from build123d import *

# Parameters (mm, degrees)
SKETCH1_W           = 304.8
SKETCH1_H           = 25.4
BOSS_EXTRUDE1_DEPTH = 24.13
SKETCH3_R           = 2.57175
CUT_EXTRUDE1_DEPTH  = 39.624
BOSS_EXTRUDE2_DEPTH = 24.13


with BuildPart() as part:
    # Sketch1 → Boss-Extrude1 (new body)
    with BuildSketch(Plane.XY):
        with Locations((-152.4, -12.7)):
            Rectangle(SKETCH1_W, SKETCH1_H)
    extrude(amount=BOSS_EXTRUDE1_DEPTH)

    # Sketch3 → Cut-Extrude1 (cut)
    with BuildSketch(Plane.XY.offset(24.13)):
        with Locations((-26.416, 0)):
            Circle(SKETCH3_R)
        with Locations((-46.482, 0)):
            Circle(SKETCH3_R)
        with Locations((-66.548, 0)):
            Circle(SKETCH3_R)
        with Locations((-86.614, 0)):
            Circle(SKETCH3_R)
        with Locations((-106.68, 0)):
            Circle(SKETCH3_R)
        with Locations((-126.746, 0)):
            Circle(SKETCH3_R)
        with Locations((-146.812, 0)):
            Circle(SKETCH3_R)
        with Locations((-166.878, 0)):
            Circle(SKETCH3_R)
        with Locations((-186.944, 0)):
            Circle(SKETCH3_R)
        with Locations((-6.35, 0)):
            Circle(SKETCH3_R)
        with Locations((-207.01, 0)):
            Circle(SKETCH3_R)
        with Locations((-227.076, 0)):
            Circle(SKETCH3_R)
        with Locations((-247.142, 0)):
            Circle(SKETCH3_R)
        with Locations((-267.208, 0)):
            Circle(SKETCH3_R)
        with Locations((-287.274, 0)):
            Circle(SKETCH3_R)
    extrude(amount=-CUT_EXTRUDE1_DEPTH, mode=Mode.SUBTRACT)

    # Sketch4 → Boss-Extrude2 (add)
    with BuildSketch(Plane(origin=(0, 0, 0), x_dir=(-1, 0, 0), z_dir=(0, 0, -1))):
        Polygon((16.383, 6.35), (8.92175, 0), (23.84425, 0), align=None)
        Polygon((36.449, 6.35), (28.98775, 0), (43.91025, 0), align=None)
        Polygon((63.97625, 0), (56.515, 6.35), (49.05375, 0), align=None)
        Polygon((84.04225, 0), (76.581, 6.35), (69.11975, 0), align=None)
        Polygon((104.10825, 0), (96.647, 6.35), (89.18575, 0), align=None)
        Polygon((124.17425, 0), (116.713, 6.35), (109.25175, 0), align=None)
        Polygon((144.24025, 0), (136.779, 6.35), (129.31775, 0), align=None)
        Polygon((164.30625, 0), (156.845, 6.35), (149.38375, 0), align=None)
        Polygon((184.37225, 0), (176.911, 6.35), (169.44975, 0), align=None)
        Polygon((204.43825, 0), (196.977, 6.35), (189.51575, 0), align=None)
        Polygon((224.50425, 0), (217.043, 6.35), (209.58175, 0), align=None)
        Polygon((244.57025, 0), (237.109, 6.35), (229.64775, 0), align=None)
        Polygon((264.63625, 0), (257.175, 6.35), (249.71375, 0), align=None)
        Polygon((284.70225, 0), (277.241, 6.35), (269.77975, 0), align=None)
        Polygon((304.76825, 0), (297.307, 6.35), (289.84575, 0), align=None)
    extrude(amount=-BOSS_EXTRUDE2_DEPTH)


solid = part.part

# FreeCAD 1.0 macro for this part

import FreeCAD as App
import Part
import Sketcher
Q = App.Units.Quantity

doc = App.newDocument("Part")
body = doc.addObject("PartDesign::Body", "Body")

# Sketch on XY plane
sketch1 = body.newObject("Sketcher::SketchObject", "Sketch")
sketch1.AttachmentSupport = (doc.getObject("XY_Plane"), [""])
sketch1.MapMode = "FlatFace"
sketch1.addGeometry([
    Part.LineSegment(App.Vector(-305, 0, 0), App.Vector(-305, -25, 0)),
    Part.LineSegment(App.Vector(-305, -25, 0), App.Vector(0, -25, 0)),
    Part.LineSegment(App.Vector(0, -25, 0), App.Vector(0, 0, 0)),
    Part.LineSegment(App.Vector(0, 0, 0), App.Vector(-305, 0, 0)),
], False)
sketch1.addConstraint([
    Sketcher.Constraint("Coincident", 0, 2, 1, 1),
    Sketcher.Constraint("Coincident", 1, 2, 2, 1),
    Sketcher.Constraint("Coincident", 2, 2, 3, 1),
    Sketcher.Constraint("Coincident", 3, 2, 0, 1),
    Sketcher.Constraint("Vertical", 0),
    Sketcher.Constraint("Horizontal", 1),
    Sketcher.Constraint("Vertical", 2),
    Sketcher.Constraint("Horizontal", 3),
    Sketcher.Constraint("Coincident", 2, 2, -1, 1),
    Sketcher.Constraint("DistanceX", 1, 1, 1, 2, Q("12 in")),
    Sketcher.Constraint("DistanceY", 0, 2, 0, 1, Q("1 in")),
])
pad1 = body.newObject("PartDesign::Pad", "Pad")
pad1.Profile = sketch1
pad1.Length = Q("0.95 in")

# Sketch on XY plane
sketch2 = body.newObject("Sketcher::SketchObject", "Sketch001")
sketch2.AttachmentSupport = (doc.getObject("XY_Plane"), [""])
sketch2.MapMode = "FlatFace"
sketch2.AttachmentOffset = App.Placement(App.Vector(0, 0, 0.95 * 25.4), App.Rotation())
sketch2.addGeometry([
    Part.Circle(App.Vector(-26.4, 0, 0), App.Vector(0, 0, 1), 2.6),  # 0
    Part.Circle(App.Vector(-46.5, 0, 0), App.Vector(0, 0, 1), 2.6),  # 1
    Part.Circle(App.Vector(-66.5, 0, 0), App.Vector(0, 0, 1), 2.6),  # 2
    Part.Circle(App.Vector(-86.6, 0, 0), App.Vector(0, 0, 1), 2.6),  # 3
    Part.Circle(App.Vector(-106.7, 0, 0), App.Vector(0, 0, 1), 2.6),  # 4
    Part.Circle(App.Vector(-126.7, 0, 0), App.Vector(0, 0, 1), 2.6),  # 5
    Part.Circle(App.Vector(-146.8, 0, 0), App.Vector(0, 0, 1), 2.6),  # 6
    Part.Circle(App.Vector(-166.9, 0, 0), App.Vector(0, 0, 1), 2.6),  # 7
    Part.Circle(App.Vector(-186.9, 0, 0), App.Vector(0, 0, 1), 2.6),  # 8
    Part.Circle(App.Vector(-6.3, 0, 0), App.Vector(0, 0, 1), 2.6),  # 9
    Part.Circle(App.Vector(-207, 0, 0), App.Vector(0, 0, 1), 2.6),  # 10
    Part.Circle(App.Vector(-227.1, 0, 0), App.Vector(0, 0, 1), 2.6),  # 11
    Part.Circle(App.Vector(-247.1, 0, 0), App.Vector(0, 0, 1), 2.6),  # 12
    Part.Circle(App.Vector(-267.2, 0, 0), App.Vector(0, 0, 1), 2.6),  # 13
    Part.Circle(App.Vector(-287.3, 0, 0), App.Vector(0, 0, 1), 2.6),  # 14
], False)
sketch2.addConstraint([
    Sketcher.Constraint("Equal", 0, 1),
    Sketcher.Constraint("Equal", 1, 2),
    Sketcher.Constraint("Equal", 2, 3),
    Sketcher.Constraint("Equal", 3, 4),
    Sketcher.Constraint("Equal", 4, 5),
    Sketcher.Constraint("Equal", 5, 6),
    Sketcher.Constraint("Equal", 6, 7),
    Sketcher.Constraint("Equal", 7, 8),
    Sketcher.Constraint("Equal", 8, 9),
    Sketcher.Constraint("Equal", 9, 10),
    Sketcher.Constraint("Equal", 10, 11),
    Sketcher.Constraint("Equal", 11, 12),
    Sketcher.Constraint("Equal", 12, 13),
    Sketcher.Constraint("Equal", 13, 14),
    Sketcher.Constraint("PointOnObject", 0, 3, -1),
    Sketcher.Constraint("PointOnObject", 1, 3, -1),
    Sketcher.Constraint("PointOnObject", 2, 3, -1),
    Sketcher.Constraint("PointOnObject", 3, 3, -1),
    Sketcher.Constraint("PointOnObject", 4, 3, -1),
    Sketcher.Constraint("PointOnObject", 5, 3, -1),
    Sketcher.Constraint("PointOnObject", 6, 3, -1),
    Sketcher.Constraint("PointOnObject", 7, 3, -1),
    Sketcher.Constraint("PointOnObject", 8, 3, -1),
    Sketcher.Constraint("PointOnObject", 9, 3, -1),
    Sketcher.Constraint("PointOnObject", 10, 3, -1),
    Sketcher.Constraint("PointOnObject", 11, 3, -1),
    Sketcher.Constraint("PointOnObject", 12, 3, -1),
    Sketcher.Constraint("PointOnObject", 13, 3, -1),
    Sketcher.Constraint("PointOnObject", 14, 3, -1),
    Sketcher.Constraint("Diameter", 0, Q("0.2025 in")),
    Sketcher.Constraint("DistanceX", 4, 3, -1, 1, Q("4.2 in")),
    Sketcher.Constraint("DistanceX", 0, 3, -1, 1, Q("1.04 in")),
    Sketcher.Constraint("DistanceX", 1, 3, -1, 1, Q("1.83 in")),
    Sketcher.Constraint("DistanceX", 2, 3, -1, 1, Q("2.62 in")),
    Sketcher.Constraint("DistanceX", 3, 3, -1, 1, Q("3.41 in")),
    Sketcher.Constraint("DistanceX", 5, 3, -1, 1, Q("4.99 in")),
    Sketcher.Constraint("DistanceX", 6, 3, -1, 1, Q("5.78 in")),
    Sketcher.Constraint("DistanceX", 7, 3, -1, 1, Q("6.57 in")),
    Sketcher.Constraint("DistanceX", 8, 3, -1, 1, Q("7.36 in")),
    Sketcher.Constraint("DistanceX", 9, 3, -1, 1, Q("0.25 in")),
    Sketcher.Constraint("DistanceX", 10, 3, -1, 1, Q("8.15 in")),
    Sketcher.Constraint("DistanceX", 11, 3, -1, 1, Q("8.94 in")),
    Sketcher.Constraint("DistanceX", 12, 3, -1, 1, Q("9.73 in")),
    Sketcher.Constraint("DistanceX", 13, 3, -1, 1, Q("10.52 in")),
    Sketcher.Constraint("DistanceX", 14, 3, -1, 1, Q("11.31 in")),
])
pocket1 = body.newObject("PartDesign::Pocket", "Pocket")
pocket1.Profile = sketch2
pocket1.Length = Q("1.56 in")

# Sketch on XY plane
sketch3 = body.newObject("Sketcher::SketchObject", "Sketch002")
sketch3.AttachmentSupport = (doc.getObject("XY_Plane"), [""])
sketch3.MapMode = "FlatFace"
sketch3.addGeometry([
    Part.LineSegment(App.Vector(-16, 6, 0), App.Vector(-9, 0, 0)),  # 0
    Part.LineSegment(App.Vector(-9, 0, 0), App.Vector(-24, 0, 0)),  # 1
    Part.LineSegment(App.Vector(-24, 0, 0), App.Vector(-16, 6, 0)),  # 2
    Part.LineSegment(App.Vector(-36, 6, 0), App.Vector(-29, 0, 0)),  # 3
    Part.LineSegment(App.Vector(-29, 0, 0), App.Vector(-44, 0, 0)),  # 4
    Part.LineSegment(App.Vector(-44, 0, 0), App.Vector(-36, 6, 0)),  # 5
    Part.LineSegment(App.Vector(-64, 0, 0), App.Vector(-57, 6, 0)),  # 6
    Part.LineSegment(App.Vector(-57, 6, 0), App.Vector(-49, 0, 0)),  # 7
    Part.LineSegment(App.Vector(-49, 0, 0), App.Vector(-64, 0, 0)),  # 8
    Part.LineSegment(App.Vector(-84, 0, 0), App.Vector(-77, 6, 0)),  # 9
    Part.LineSegment(App.Vector(-77, 6, 0), App.Vector(-69, 0, 0)),  # 10
    Part.LineSegment(App.Vector(-69, 0, 0), App.Vector(-84, 0, 0)),  # 11
    Part.LineSegment(App.Vector(-104, 0, 0), App.Vector(-97, 6, 0)),  # 12
    Part.LineSegment(App.Vector(-97, 6, 0), App.Vector(-89, 0, 0)),  # 13
    Part.LineSegment(App.Vector(-89, 0, 0), App.Vector(-104, 0, 0)),  # 14
    Part.LineSegment(App.Vector(-124, 0, 0), App.Vector(-117, 6, 0)),  # 15
    Part.LineSegment(App.Vector(-117, 6, 0), App.Vector(-109, 0, 0)),  # 16
    Part.LineSegment(App.Vector(-109, 0, 0), App.Vector(-124, 0, 0)),  # 17
    Part.LineSegment(App.Vector(-144, 0, 0), App.Vector(-137, 6, 0)),  # 18
    Part.LineSegment(App.Vector(-137, 6, 0), App.Vector(-129, 0, 0)),  # 19
    Part.LineSegment(App.Vector(-129, 0, 0), App.Vector(-144, 0, 0)),  # 20
    Part.LineSegment(App.Vector(-164, 0, 0), App.Vector(-157, 6, 0)),  # 21
    Part.LineSegment(App.Vector(-157, 6, 0), App.Vector(-149, 0, 0)),  # 22
    Part.LineSegment(App.Vector(-149, 0, 0), App.Vector(-164, 0, 0)),  # 23
    Part.LineSegment(App.Vector(-184, 0, 0), App.Vector(-177, 6, 0)),  # 24
    Part.LineSegment(App.Vector(-177, 6, 0), App.Vector(-169, 0, 0)),  # 25
    Part.LineSegment(App.Vector(-169, 0, 0), App.Vector(-184, 0, 0)),  # 26
    Part.LineSegment(App.Vector(-204, 0, 0), App.Vector(-197, 6, 0)),  # 27
    Part.LineSegment(App.Vector(-197, 6, 0), App.Vector(-190, 0, 0)),  # 28
    Part.LineSegment(App.Vector(-190, 0, 0), App.Vector(-204, 0, 0)),  # 29
    Part.LineSegment(App.Vector(-225, 0, 0), App.Vector(-217, 6, 0)),  # 30
    Part.LineSegment(App.Vector(-217, 6, 0), App.Vector(-210, 0, 0)),  # 31
    Part.LineSegment(App.Vector(-210, 0, 0), App.Vector(-225, 0, 0)),  # 32
    Part.LineSegment(App.Vector(-245, 0, 0), App.Vector(-237, 6, 0)),  # 33
    Part.LineSegment(App.Vector(-237, 6, 0), App.Vector(-230, 0, 0)),  # 34
    Part.LineSegment(App.Vector(-230, 0, 0), App.Vector(-245, 0, 0)),  # 35
    Part.LineSegment(App.Vector(-265, 0, 0), App.Vector(-257, 6, 0)),  # 36
    Part.LineSegment(App.Vector(-257, 6, 0), App.Vector(-250, 0, 0)),  # 37
    Part.LineSegment(App.Vector(-250, 0, 0), App.Vector(-265, 0, 0)),  # 38
    Part.LineSegment(App.Vector(-285, 0, 0), App.Vector(-277, 6, 0)),  # 39
    Part.LineSegment(App.Vector(-277, 6, 0), App.Vector(-270, 0, 0)),  # 40
    Part.LineSegment(App.Vector(-270, 0, 0), App.Vector(-285, 0, 0)),  # 41
    Part.LineSegment(App.Vector(-305, 0, 0), App.Vector(-297, 6, 0)),  # 42
    Part.LineSegment(App.Vector(-297, 6, 0), App.Vector(-290, 0, 0)),  # 43
    Part.LineSegment(App.Vector(-290, 0, 0), App.Vector(-305, 0, 0)),  # 44
], False)
sketch3.addConstraint([
    Sketcher.Constraint("Coincident", 0, 2, 1, 1),
    Sketcher.Constraint("Coincident", 1, 2, 2, 1),
    Sketcher.Constraint("Coincident", 2, 2, 0, 1),
    Sketcher.Constraint("Coincident", 3, 2, 4, 1),
    Sketcher.Constraint("Coincident", 4, 2, 5, 1),
    Sketcher.Constraint("Coincident", 5, 2, 3, 1),
    Sketcher.Constraint("Coincident", 6, 2, 7, 1),
    Sketcher.Constraint("Coincident", 7, 2, 8, 1),
    Sketcher.Constraint("Coincident", 8, 2, 6, 1),
    Sketcher.Constraint("Coincident", 9, 2, 10, 1),
    Sketcher.Constraint("Coincident", 10, 2, 11, 1),
    Sketcher.Constraint("Coincident", 11, 2, 9, 1),
    Sketcher.Constraint("Coincident", 12, 2, 13, 1),
    Sketcher.Constraint("Coincident", 13, 2, 14, 1),
    Sketcher.Constraint("Coincident", 14, 2, 12, 1),
    Sketcher.Constraint("Coincident", 15, 2, 16, 1),
    Sketcher.Constraint("Coincident", 16, 2, 17, 1),
    Sketcher.Constraint("Coincident", 17, 2, 15, 1),
    Sketcher.Constraint("Coincident", 18, 2, 19, 1),
    Sketcher.Constraint("Coincident", 19, 2, 20, 1),
    Sketcher.Constraint("Coincident", 20, 2, 18, 1),
    Sketcher.Constraint("Coincident", 21, 2, 22, 1),
    Sketcher.Constraint("Coincident", 22, 2, 23, 1),
    Sketcher.Constraint("Coincident", 23, 2, 21, 1),
    Sketcher.Constraint("Coincident", 24, 2, 25, 1),
    Sketcher.Constraint("Coincident", 25, 2, 26, 1),
    Sketcher.Constraint("Coincident", 26, 2, 24, 1),
    Sketcher.Constraint("Coincident", 27, 2, 28, 1),
    Sketcher.Constraint("Coincident", 28, 2, 29, 1),
    Sketcher.Constraint("Coincident", 29, 2, 27, 1),
    Sketcher.Constraint("Coincident", 30, 2, 31, 1),
    Sketcher.Constraint("Coincident", 31, 2, 32, 1),
    Sketcher.Constraint("Coincident", 32, 2, 30, 1),
    Sketcher.Constraint("Coincident", 33, 2, 34, 1),
    Sketcher.Constraint("Coincident", 34, 2, 35, 1),
    Sketcher.Constraint("Coincident", 35, 2, 33, 1),
    Sketcher.Constraint("Coincident", 36, 2, 37, 1),
    Sketcher.Constraint("Coincident", 37, 2, 38, 1),
    Sketcher.Constraint("Coincident", 38, 2, 36, 1),
    Sketcher.Constraint("Coincident", 39, 2, 40, 1),
    Sketcher.Constraint("Coincident", 40, 2, 41, 1),
    Sketcher.Constraint("Coincident", 41, 2, 39, 1),
    Sketcher.Constraint("Coincident", 42, 2, 43, 1),
    Sketcher.Constraint("Coincident", 43, 2, 44, 1),
    Sketcher.Constraint("Coincident", 44, 2, 42, 1),
    Sketcher.Constraint("Horizontal", 1),
    Sketcher.Constraint("Horizontal", 4),
    Sketcher.Constraint("Horizontal", 8),
    Sketcher.Constraint("Horizontal", 11),
    Sketcher.Constraint("Horizontal", 14),
    Sketcher.Constraint("Horizontal", 17),
    Sketcher.Constraint("Horizontal", 20),
    Sketcher.Constraint("Horizontal", 23),
    Sketcher.Constraint("Horizontal", 26),
    Sketcher.Constraint("Horizontal", 29),
    Sketcher.Constraint("Horizontal", 32),
    Sketcher.Constraint("Horizontal", 35),
    Sketcher.Constraint("Horizontal", 38),
    Sketcher.Constraint("Horizontal", 41),
    Sketcher.Constraint("Horizontal", 44),
    Sketcher.Constraint("PointOnObject", 0, 2, -1),
    Sketcher.Constraint("PointOnObject", 3, 2, -1),
    Sketcher.Constraint("PointOnObject", 7, 2, -1),
    Sketcher.Constraint("PointOnObject", 10, 2, -1),
    Sketcher.Constraint("PointOnObject", 13, 2, -1),
    Sketcher.Constraint("PointOnObject", 16, 2, -1),
    Sketcher.Constraint("PointOnObject", 19, 2, -1),
    Sketcher.Constraint("PointOnObject", 22, 2, -1),
    Sketcher.Constraint("PointOnObject", 25, 2, -1),
    Sketcher.Constraint("PointOnObject", 28, 2, -1),
    Sketcher.Constraint("PointOnObject", 31, 2, -1),
    Sketcher.Constraint("PointOnObject", 34, 2, -1),
    Sketcher.Constraint("PointOnObject", 37, 2, -1),
    Sketcher.Constraint("PointOnObject", 40, 2, -1),
    Sketcher.Constraint("PointOnObject", 43, 2, -1),
    Sketcher.Constraint("Parallel", 0, 3),
    Sketcher.Constraint("Parallel", 2, 5),
    Sketcher.Constraint("Parallel", 5, 6),
    Sketcher.Constraint("Parallel", 3, 7),
    Sketcher.Constraint("Parallel", 6, 9),
    Sketcher.Constraint("Parallel", 7, 10),
    Sketcher.Constraint("Parallel", 9, 12),
    Sketcher.Constraint("Parallel", 10, 13),
    Sketcher.Constraint("Parallel", 12, 15),
    Sketcher.Constraint("Parallel", 13, 16),
    Sketcher.Constraint("Parallel", 15, 18),
    Sketcher.Constraint("Parallel", 16, 19),
    Sketcher.Constraint("Parallel", 18, 21),
    Sketcher.Constraint("Parallel", 19, 22),
    Sketcher.Constraint("Parallel", 21, 24),
    Sketcher.Constraint("Parallel", 22, 25),
    Sketcher.Constraint("Parallel", 24, 27),
    Sketcher.Constraint("Parallel", 25, 28),
    Sketcher.Constraint("Parallel", 27, 30),
    Sketcher.Constraint("Parallel", 28, 31),
    Sketcher.Constraint("Parallel", 30, 33),
    Sketcher.Constraint("Parallel", 31, 34),
    Sketcher.Constraint("Parallel", 33, 36),
    Sketcher.Constraint("Parallel", 34, 37),
    Sketcher.Constraint("Parallel", 36, 39),
    Sketcher.Constraint("Parallel", 37, 40),
    Sketcher.Constraint("Parallel", 39, 42),
    Sketcher.Constraint("Parallel", 40, 43),
    Sketcher.Constraint("Horizontal", 2, 2, 5, 2),
    Sketcher.Constraint("Horizontal", 5, 2, 6, 2),
    Sketcher.Constraint("Horizontal", 6, 2, 9, 2),
    Sketcher.Constraint("Horizontal", 9, 2, 12, 2),
    Sketcher.Constraint("Horizontal", 12, 2, 15, 2),
    Sketcher.Constraint("Horizontal", 15, 2, 18, 2),
    Sketcher.Constraint("Horizontal", 18, 2, 21, 2),
    Sketcher.Constraint("Horizontal", 21, 2, 24, 2),
    Sketcher.Constraint("Horizontal", 24, 2, 27, 2),
    Sketcher.Constraint("Horizontal", 27, 2, 30, 2),
    Sketcher.Constraint("Horizontal", 30, 2, 33, 2),
    Sketcher.Constraint("Horizontal", 33, 2, 36, 2),
    Sketcher.Constraint("Horizontal", 36, 2, 39, 2),
    Sketcher.Constraint("Horizontal", 39, 2, 42, 2),
    Sketcher.Constraint("Equal", 0, 2),
    Sketcher.Constraint("DistanceY", -1, 1, 2, 2, Q("0.25 in")),
    Sketcher.Constraint("DistanceX", 3, 2, 0, 2, Q("0.79 in")),
    Sketcher.Constraint("DistanceX", 6, 2, 5, 2, Q("0.79 in")),
    Sketcher.Constraint("DistanceX", 9, 2, 6, 2, Q("0.79 in")),
    Sketcher.Constraint("DistanceX", 12, 2, 9, 2, Q("0.79 in")),
    Sketcher.Constraint("DistanceX", 15, 2, 12, 2, Q("0.79 in")),
    Sketcher.Constraint("DistanceX", 18, 2, 15, 2, Q("0.79 in")),
    Sketcher.Constraint("DistanceX", 21, 2, 18, 2, Q("0.79 in")),
    Sketcher.Constraint("DistanceX", 24, 2, 21, 2, Q("0.79 in")),
    Sketcher.Constraint("DistanceX", 27, 2, 24, 2, Q("0.79 in")),
    Sketcher.Constraint("DistanceX", 30, 2, 27, 2, Q("0.79 in")),
    Sketcher.Constraint("DistanceX", 33, 2, 30, 2, Q("0.79 in")),
    Sketcher.Constraint("DistanceX", 36, 2, 33, 2, Q("0.79 in")),
    Sketcher.Constraint("DistanceX", 39, 2, 36, 2, Q("0.79 in")),
    Sketcher.Constraint("DistanceX", 42, 2, 39, 2, Q("0.79 in")),
    Sketcher.Constraint("DistanceX", 1, 2, 1, 1, Q("0.5875 in")),
    Sketcher.Constraint("DistanceX", 2, 2, -1, 1, Q("0.645 in")),
])
pad2 = body.newObject("PartDesign::Pad", "Pad001")
pad2.Profile = sketch3
pad2.Length = Q("0.95 in")

doc.recompute()
